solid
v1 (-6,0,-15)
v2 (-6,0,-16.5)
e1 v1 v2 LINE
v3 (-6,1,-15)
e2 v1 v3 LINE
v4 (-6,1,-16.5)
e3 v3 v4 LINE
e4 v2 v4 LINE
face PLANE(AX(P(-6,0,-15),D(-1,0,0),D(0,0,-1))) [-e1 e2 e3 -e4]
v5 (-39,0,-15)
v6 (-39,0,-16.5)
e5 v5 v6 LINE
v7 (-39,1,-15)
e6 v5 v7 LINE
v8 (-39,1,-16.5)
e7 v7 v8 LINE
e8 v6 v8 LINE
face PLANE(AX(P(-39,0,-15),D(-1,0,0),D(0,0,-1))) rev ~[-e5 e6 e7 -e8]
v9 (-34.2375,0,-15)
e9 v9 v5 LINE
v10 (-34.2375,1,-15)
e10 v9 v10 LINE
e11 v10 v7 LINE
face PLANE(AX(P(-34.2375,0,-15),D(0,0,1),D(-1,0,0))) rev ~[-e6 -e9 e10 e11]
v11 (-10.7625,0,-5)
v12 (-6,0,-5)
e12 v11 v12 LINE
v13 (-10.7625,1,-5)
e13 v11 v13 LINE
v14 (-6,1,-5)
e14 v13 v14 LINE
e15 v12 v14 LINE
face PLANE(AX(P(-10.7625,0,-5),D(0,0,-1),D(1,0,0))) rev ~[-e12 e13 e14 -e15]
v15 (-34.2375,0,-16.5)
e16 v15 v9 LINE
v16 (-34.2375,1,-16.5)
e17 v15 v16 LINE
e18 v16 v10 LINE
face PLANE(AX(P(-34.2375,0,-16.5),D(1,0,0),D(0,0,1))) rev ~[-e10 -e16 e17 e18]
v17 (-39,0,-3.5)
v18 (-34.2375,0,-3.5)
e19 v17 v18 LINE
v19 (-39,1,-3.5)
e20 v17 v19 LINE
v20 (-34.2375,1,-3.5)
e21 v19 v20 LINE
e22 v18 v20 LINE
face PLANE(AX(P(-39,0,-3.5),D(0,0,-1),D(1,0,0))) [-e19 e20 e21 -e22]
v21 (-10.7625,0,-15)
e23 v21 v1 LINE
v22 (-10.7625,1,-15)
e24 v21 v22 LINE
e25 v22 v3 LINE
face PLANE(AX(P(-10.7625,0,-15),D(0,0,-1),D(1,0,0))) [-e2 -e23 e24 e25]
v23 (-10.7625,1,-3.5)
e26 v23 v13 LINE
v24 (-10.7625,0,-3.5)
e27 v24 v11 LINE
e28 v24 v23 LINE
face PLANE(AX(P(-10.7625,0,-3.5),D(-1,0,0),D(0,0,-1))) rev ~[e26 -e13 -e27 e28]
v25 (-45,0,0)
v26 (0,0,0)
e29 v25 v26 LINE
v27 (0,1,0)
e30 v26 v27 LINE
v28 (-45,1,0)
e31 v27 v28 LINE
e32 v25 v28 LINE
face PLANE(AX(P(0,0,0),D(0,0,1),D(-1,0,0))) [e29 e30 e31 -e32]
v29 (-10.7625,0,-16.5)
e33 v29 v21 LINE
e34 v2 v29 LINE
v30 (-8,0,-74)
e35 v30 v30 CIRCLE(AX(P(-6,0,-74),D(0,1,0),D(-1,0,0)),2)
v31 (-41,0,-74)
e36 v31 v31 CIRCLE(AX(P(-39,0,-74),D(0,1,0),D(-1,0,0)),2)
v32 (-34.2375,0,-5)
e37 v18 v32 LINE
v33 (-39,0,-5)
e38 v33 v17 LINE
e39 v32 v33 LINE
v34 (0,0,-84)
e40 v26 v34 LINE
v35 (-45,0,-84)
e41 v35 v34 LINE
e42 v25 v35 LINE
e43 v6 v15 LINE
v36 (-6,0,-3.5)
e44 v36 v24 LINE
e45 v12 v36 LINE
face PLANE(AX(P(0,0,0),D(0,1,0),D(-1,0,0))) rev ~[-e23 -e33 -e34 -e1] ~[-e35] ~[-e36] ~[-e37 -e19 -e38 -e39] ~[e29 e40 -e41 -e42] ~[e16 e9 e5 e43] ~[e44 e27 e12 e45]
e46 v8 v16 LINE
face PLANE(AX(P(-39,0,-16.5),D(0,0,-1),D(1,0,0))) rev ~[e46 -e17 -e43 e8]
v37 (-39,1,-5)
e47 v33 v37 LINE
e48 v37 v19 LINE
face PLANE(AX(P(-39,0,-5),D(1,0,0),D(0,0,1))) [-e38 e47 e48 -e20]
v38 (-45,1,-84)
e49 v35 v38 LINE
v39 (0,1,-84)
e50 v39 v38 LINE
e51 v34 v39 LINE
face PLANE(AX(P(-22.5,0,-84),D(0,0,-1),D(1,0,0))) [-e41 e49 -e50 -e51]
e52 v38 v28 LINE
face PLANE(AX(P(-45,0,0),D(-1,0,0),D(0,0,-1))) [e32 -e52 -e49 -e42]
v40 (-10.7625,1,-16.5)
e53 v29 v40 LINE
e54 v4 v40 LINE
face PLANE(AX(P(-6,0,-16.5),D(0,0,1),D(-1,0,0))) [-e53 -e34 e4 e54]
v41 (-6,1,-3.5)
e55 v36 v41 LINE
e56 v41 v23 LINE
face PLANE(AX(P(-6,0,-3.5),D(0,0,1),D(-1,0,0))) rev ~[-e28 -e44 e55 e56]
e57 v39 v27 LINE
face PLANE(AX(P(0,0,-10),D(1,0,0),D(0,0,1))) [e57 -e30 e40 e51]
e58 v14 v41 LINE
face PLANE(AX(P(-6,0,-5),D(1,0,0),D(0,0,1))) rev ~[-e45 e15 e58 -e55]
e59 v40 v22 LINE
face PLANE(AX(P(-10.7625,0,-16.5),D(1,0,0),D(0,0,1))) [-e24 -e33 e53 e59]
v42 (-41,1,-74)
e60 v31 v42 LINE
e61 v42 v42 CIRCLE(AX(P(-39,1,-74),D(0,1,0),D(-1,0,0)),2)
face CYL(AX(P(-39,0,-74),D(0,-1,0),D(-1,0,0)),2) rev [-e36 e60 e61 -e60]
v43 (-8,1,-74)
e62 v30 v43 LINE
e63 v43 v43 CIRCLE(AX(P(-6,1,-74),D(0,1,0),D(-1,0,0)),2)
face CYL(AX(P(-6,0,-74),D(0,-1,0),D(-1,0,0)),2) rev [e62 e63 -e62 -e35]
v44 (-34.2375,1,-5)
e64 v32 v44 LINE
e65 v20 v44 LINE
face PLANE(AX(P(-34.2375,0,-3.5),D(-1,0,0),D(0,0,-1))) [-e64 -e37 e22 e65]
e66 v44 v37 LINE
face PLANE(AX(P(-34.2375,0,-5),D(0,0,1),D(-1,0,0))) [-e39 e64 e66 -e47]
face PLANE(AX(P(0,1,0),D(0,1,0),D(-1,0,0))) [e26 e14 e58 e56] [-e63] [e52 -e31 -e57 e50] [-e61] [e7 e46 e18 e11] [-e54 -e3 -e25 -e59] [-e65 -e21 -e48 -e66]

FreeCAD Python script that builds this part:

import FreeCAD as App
import Part
import Sketcher
Q = App.Units.Quantity


def add_polygon(sketch, points):
    """Adds a closed chain of lines whose ends are joined by coincident constraints."""
    first, n = sketch.GeometryCount, len(points)
    for a, b in zip(points, points[1:] + points[:1]):
        sketch.addGeometry(Part.LineSegment(App.Vector(*a, 0), App.Vector(*b, 0)), False)
    for i in range(n):
        sketch.addConstraint(Sketcher.Constraint("Coincident", first + i, 2, first + (i + 1) % n, 1))

doc = App.newDocument("Part")
body = doc.addObject("PartDesign::Body", "Body")

# Sketch on XZ plane
sketch1 = body.newObject("Sketcher::SketchObject", "Sketch")
sketch1.AttachmentSupport = (doc.getObject("XZ_Plane"), [""])
sketch1.MapMode = "FlatFace"
add_polygon(sketch1, [(0, 0), (0, -84), (-45, -84), (-45, 0)])  # lines 0-3
add_polygon(sketch1, [(-6, -5), (-6, -3.5), (-10.8, -3.5), (-10.8, -5)])  # lines 4-7
add_polygon(sketch1, [(-39, -3.5), (-39, -5), (-34.2, -5), (-34.2, -3.5)])  # lines 8-11
add_polygon(sketch1, [(-6, -16.5), (-6, -15), (-10.8, -15), (-10.8, -16.5)])  # lines 12-15
sketch1.addGeometry(Part.Circle(App.Vector(-6, -74, 0), App.Vector(0, 0, 1), 2), False)  # 16
add_polygon(sketch1, [(-34.2, -16.5), (-34.2, -15), (-39, -15), (-39, -16.5)])  # lines 17-20
sketch1.addGeometry(Part.Circle(App.Vector(-39, -74, 0), App.Vector(0, 0, 1), 2), False)  # 21
sketch1.addConstraint([
    Sketcher.Constraint("Vertical", 0),
    Sketcher.Constraint("Horizontal", 1),
    Sketcher.Constraint("Vertical", 2),
    Sketcher.Constraint("Horizontal", 3),
    Sketcher.Constraint("Vertical", 4),
    Sketcher.Constraint("Horizontal", 5),
    Sketcher.Constraint("Vertical", 6),
    Sketcher.Constraint("Horizontal", 7),
    Sketcher.Constraint("Vertical", 8),
    Sketcher.Constraint("Horizontal", 9),
    Sketcher.Constraint("Vertical", 10),
    Sketcher.Constraint("Horizontal", 11),
    Sketcher.Constraint("Vertical", 12),
    Sketcher.Constraint("Horizontal", 13),
    Sketcher.Constraint("Vertical", 14),
    Sketcher.Constraint("Horizontal", 15),
    Sketcher.Constraint("Vertical", 17),
    Sketcher.Constraint("Horizontal", 18),
    Sketcher.Constraint("Vertical", 19),
    Sketcher.Constraint("Horizontal", 20),
    Sketcher.Constraint("Coincident", 3, 2, -1, 1),
    Sketcher.Constraint("Equal", 16, 21),
    Sketcher.Constraint("Horizontal", 16, 3, 21, 3),
    Sketcher.Constraint("Horizontal", 7, 2, 8, 2),
    Sketcher.Constraint("Horizontal", 5, 2, 10, 2),
    Sketcher.Constraint("Horizontal", 13, 2, 17, 2),
    Sketcher.Constraint("Horizontal", 15, 2, 19, 2),
    Sketcher.Constraint("Vertical", 16, 3, 4, 2),
    Sketcher.Constraint("Vertical", 21, 3, 8, 2),
    Sketcher.Constraint("Vertical", 7, 2, 12, 2),
    Sketcher.Constraint("Vertical", 6, 2, 13, 2),
    Sketcher.Constraint("Vertical", 10, 2, 17, 2),
    Sketcher.Constraint("Vertical", 11, 2, 18, 2),
    Sketcher.Constraint("Equal", 7, 9),
    Sketcher.Constraint("Equal", 10, 12),
    Sketcher.Constraint("Diameter", 16, Q("4 mm")),
    Sketcher.Constraint("DistanceX", 1, 2, 1, 1, Q("45 mm")),
    Sketcher.Constraint("DistanceY", 0, 2, 0, 1, Q("84 mm")),
    Sketcher.Constraint("DistanceY", 4, 1, 4, 2, Q("1.5 mm")),
    Sketcher.Constraint("DistanceX", 16, 3, -1, 1, Q("6 mm")),
    Sketcher.Constraint("DistanceY", 0, 2, 16, 3, Q("10 mm")),
    Sketcher.Constraint("DistanceX", 1, 2, 21, 3, Q("6 mm")),
    Sketcher.Constraint("DistanceY", 12, 2, 7, 2, Q("10 mm")),
    Sketcher.Constraint("DistanceY", 6, 2, -1, 1, Q("5 mm")),
    Sketcher.Constraint("DistanceX", 5, 2, 5, 1, Q("4.7625 mm")),
])
pad1 = body.newObject("PartDesign::Pad", "Pad")
pad1.Profile = sketch1
pad1.Length = 1
pad1.Reversed = True

doc.recompute()
